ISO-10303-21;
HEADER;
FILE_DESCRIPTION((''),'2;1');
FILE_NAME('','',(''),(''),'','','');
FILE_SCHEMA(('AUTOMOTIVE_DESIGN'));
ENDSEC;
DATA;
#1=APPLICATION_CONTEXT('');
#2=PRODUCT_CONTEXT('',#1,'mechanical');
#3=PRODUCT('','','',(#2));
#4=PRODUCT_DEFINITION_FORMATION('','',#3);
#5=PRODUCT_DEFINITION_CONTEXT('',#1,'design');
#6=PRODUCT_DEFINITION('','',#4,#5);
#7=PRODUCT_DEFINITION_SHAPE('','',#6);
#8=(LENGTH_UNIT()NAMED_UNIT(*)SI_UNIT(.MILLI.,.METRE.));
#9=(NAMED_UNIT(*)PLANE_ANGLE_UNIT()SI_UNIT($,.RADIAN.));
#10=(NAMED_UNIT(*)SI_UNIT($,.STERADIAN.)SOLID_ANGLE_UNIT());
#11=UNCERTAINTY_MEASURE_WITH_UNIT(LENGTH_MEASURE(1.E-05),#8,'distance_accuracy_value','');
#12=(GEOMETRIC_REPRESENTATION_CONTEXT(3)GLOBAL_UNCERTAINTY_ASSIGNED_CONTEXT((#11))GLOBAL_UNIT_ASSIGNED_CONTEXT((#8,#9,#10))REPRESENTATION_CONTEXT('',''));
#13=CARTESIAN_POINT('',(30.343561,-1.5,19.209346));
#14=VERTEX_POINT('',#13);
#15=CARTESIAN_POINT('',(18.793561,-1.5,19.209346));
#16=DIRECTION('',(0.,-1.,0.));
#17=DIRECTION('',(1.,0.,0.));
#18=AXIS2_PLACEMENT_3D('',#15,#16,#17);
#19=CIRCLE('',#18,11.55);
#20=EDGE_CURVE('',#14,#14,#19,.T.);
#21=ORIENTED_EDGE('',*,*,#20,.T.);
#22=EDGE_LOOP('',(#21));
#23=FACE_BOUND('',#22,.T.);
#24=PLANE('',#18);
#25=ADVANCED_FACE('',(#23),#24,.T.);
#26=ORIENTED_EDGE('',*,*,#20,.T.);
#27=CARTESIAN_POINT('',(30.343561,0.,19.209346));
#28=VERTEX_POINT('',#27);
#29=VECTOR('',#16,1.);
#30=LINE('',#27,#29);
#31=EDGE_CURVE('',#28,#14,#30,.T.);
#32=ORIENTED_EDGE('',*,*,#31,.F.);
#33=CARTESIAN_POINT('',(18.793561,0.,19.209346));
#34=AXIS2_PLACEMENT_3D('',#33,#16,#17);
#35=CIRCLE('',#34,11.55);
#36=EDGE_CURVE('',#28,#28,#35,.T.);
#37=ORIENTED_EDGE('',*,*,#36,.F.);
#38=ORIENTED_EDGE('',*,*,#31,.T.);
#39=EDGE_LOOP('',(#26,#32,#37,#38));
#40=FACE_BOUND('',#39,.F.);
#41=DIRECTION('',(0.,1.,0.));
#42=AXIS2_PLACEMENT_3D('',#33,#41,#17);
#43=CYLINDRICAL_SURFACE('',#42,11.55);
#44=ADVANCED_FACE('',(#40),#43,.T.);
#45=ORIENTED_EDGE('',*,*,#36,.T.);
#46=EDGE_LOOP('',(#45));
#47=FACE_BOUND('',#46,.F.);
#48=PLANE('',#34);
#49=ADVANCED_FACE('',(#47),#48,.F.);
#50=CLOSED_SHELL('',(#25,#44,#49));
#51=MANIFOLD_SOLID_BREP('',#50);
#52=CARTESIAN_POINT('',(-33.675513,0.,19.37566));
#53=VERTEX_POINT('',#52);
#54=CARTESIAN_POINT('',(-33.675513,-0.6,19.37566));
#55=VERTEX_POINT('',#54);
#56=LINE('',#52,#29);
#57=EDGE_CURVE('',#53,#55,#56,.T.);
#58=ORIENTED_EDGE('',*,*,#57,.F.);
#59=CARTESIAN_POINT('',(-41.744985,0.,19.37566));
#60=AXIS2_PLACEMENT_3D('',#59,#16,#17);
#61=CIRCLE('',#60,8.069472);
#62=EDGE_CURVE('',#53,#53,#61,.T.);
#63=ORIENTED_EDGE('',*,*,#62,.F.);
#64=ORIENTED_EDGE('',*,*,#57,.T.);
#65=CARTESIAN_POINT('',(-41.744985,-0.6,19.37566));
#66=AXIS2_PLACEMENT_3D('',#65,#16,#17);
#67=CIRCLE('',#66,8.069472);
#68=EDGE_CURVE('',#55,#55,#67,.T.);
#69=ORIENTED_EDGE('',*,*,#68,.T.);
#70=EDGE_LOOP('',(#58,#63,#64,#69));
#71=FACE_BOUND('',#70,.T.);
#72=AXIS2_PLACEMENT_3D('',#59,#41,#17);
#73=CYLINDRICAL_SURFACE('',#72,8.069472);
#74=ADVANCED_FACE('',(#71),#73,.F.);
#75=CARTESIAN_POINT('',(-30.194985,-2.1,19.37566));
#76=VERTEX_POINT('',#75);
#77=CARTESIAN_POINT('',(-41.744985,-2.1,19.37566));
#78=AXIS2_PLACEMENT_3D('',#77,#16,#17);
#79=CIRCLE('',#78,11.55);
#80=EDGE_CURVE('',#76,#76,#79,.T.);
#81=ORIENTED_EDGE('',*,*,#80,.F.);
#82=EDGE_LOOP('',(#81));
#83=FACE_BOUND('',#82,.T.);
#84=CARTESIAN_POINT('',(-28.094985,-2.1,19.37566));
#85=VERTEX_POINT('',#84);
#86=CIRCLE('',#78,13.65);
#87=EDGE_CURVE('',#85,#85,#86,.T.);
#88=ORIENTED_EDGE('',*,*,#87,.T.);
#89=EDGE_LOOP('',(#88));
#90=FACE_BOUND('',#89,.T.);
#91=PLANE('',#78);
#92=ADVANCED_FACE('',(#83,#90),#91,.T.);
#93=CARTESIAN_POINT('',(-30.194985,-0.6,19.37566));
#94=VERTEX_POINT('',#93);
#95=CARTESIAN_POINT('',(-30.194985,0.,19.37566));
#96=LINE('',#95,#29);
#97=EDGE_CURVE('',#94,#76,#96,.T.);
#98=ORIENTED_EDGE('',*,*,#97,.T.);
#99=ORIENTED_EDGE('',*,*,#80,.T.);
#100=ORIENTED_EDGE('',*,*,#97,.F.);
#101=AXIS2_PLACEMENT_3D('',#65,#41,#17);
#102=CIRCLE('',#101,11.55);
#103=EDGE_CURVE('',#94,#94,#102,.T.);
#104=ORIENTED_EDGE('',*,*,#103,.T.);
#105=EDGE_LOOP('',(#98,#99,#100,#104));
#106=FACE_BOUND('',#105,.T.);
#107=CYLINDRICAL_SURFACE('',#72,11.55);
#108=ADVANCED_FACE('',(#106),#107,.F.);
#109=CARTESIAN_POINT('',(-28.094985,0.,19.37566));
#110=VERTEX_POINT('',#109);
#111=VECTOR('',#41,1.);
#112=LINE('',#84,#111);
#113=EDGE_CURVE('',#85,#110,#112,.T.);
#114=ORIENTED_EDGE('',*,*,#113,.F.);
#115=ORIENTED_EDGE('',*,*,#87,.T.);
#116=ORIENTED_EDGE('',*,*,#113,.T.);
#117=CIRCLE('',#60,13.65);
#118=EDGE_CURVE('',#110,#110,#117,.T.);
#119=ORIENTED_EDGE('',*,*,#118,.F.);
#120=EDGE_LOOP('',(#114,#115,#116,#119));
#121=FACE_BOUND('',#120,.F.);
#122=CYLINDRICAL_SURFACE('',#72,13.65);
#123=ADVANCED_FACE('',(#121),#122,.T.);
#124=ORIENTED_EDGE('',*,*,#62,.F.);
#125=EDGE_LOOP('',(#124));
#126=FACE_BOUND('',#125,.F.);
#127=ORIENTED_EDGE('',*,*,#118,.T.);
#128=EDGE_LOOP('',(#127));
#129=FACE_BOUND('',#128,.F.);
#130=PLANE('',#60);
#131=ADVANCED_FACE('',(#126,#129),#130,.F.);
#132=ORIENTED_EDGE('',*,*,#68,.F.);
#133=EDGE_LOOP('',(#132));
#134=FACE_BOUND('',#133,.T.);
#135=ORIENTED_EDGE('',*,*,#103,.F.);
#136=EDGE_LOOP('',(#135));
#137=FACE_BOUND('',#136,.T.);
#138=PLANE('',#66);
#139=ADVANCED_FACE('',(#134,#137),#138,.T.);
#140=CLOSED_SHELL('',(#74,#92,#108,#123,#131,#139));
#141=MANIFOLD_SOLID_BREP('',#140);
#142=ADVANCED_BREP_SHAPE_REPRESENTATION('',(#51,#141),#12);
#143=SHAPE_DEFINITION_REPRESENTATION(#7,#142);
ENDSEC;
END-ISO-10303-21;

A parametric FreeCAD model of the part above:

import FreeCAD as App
import Part
import Sketcher
Q = App.Units.Quantity

doc = App.newDocument("Part")
params = doc.addObject("Spreadsheet::Sheet", "Params")
for row, (alias, value) in enumerate([
    ("sketch1_diameter", "27.3 mm"),
    ("pad1_length", "0.6 mm"),
    ("sketch2_diameter", "27.3 mm"),
    ("sketch2_diameter2", "23.1 mm"),
    ("pad2_length", "2.1 mm"),
    ("sketch3_diameter", "23.1 mm"),
    ("pad3_length", "1.5 mm"),
], start=1):
    params.set(f"A{row}", alias)
    params.set(f"B{row}", "=" + value)
    params.setAlias(f"B{row}", alias)

body = doc.addObject("PartDesign::Body", "Body")

# Sketch on XZ plane
sketch1 = doc.addObject("Sketcher::SketchObject", "Sketch")
body.addObject(sketch1)
sketch1.AttachmentSupport = (doc.XZ_Plane, [""])
sketch1.MapMode = "FlatFace"
sketch1.addGeometry([
    Part.Circle(App.Vector(-42, 19, 0), App.Vector(0, 0, 1), 14),
    Part.Circle(App.Vector(-42, 19, 0), App.Vector(0, 0, 1), 8),
], False)
sketch1.addConstraint([
    Sketcher.Constraint("Coincident", 1, 3, 0, 3),
    Sketcher.Constraint("Diameter", 0, Q("27.3 mm")),
    Sketcher.Constraint("Diameter", 1, Q("16.138944 mm")),
    Sketcher.Constraint("DistanceY", -1, 1, 0, 3, Q("19.37566 mm")),
    Sketcher.Constraint("DistanceX", 0, 3, -1, 1, Q("41.744985 mm")),
])
sketch1.setExpression("Constraints[1]", "Params.sketch1_diameter")
pad1 = doc.addObject("PartDesign::Pad", "Pad")
body.addObject(pad1)
pad1.Profile = sketch1
pad1.setExpression("Length", "Params.pad1_length")

# Sketch on XZ plane
sketch2 = doc.addObject("Sketcher::SketchObject", "Sketch001")
body.addObject(sketch2)
sketch2.AttachmentSupport = (doc.XZ_Plane, [""])
sketch2.MapMode = "FlatFace"
sketch2.addGeometry([
    Part.Circle(App.Vector(-42, 19, 0), App.Vector(0, 0, 1), 14),
    Part.Circle(App.Vector(-42, 19, 0), App.Vector(0, 0, 1), 12),
], False)
sketch2.addConstraint([
    Sketcher.Constraint("Coincident", 1, 3, 0, 3),
    Sketcher.Constraint("Diameter", 0, Q("27.3 mm")),
    Sketcher.Constraint("Diameter", 1, Q("23.1 mm")),
    Sketcher.Constraint("DistanceY", -1, 1, 0, 3, Q("19.37566 mm")),
    Sketcher.Constraint("DistanceX", 0, 3, -1, 1, Q("41.744985 mm")),
])
sketch2.setExpression("Constraints[1]", "Params.sketch2_diameter")
sketch2.setExpression("Constraints[2]", "Params.sketch2_diameter2")
pad2 = doc.addObject("PartDesign::Pad", "Pad001")
body.addObject(pad2)
pad2.Profile = sketch2
pad2.setExpression("Length", "Params.pad2_length")
body2 = doc.addObject("PartDesign::Body", "Body001")

# Sketch on XZ plane
sketch3 = doc.addObject("Sketcher::SketchObject", "Sketch002")
body2.addObject(sketch3)
sketch3.AttachmentSupport = (doc.getObject("XZ_Plane001"), [""])
sketch3.MapMode = "FlatFace"
sketch3.addGeometry(Part.Circle(App.Vector(19, 19, 0), App.Vector(0, 0, 1), 12), False)
sketch3.addConstraint([
    Sketcher.Constraint("Diameter", 0, Q("23.1 mm")),
    Sketcher.Constraint("DistanceX", -1, 1, 0, 3, Q("18.793561 mm")),
    Sketcher.Constraint("DistanceY", -1, 1, 0, 3, Q("19.209346 mm")),
])
sketch3.setExpression("Constraints[0]", "Params.sketch3_diameter")
pad3 = doc.addObject("PartDesign::Pad", "Pad002")
body2.addObject(pad3)
pad3.Profile = sketch3
pad3.setExpression("Length", "Params.pad3_length")

doc.recompute()
